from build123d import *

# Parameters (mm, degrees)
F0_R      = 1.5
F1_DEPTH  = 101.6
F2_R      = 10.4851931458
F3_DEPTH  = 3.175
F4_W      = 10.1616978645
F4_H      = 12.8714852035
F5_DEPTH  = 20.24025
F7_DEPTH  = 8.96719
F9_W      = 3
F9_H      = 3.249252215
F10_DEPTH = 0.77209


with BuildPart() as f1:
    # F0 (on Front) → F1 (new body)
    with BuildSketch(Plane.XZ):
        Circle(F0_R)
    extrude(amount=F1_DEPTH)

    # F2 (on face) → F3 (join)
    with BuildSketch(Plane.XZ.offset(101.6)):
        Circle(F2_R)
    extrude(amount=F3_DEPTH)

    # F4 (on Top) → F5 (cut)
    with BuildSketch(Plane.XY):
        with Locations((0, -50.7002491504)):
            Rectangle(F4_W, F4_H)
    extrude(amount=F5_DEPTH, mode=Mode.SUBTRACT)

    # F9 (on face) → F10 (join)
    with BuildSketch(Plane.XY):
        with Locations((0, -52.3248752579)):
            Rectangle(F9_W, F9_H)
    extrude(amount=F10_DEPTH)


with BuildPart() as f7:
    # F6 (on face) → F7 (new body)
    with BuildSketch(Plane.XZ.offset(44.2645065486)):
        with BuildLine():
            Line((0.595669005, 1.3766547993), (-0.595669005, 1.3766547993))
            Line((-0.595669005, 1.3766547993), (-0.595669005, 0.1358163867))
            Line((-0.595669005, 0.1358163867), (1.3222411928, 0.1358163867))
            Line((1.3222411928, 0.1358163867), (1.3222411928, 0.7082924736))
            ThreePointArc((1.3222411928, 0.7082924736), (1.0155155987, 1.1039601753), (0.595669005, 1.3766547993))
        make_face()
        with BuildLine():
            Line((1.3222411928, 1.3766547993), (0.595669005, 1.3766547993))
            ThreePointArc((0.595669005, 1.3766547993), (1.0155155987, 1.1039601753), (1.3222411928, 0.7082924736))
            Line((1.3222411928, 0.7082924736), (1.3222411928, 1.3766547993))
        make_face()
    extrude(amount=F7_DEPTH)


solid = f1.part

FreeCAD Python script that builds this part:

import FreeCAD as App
import Part
import Sketcher

V = App.Vector
Q = App.Units.Quantity

doc = App.newDocument("Part")
params = doc.addObject("Spreadsheet::Sheet", "Params")
for row, (alias, value) in enumerate([
    ("pad1_length", "4 in"),
    ("pad2_length", "0.125 in"),
    ("pocket1_length", "20.24025 mm"),
    ("pad3_length", "0.77209 mm"),
    ("pad4_length", "8.96719 mm"),
], start=1):
    params.set(f"A{row}", alias)
    params.set(f"B{row}", "=" + value)
    params.setAlias(f"B{row}", alias)

body = doc.addObject("PartDesign::Body", "Body")

sketch1 = body.newObject("Sketcher::SketchObject", "Sketch")
sketch1.AttachmentSupport = (doc.getObject("XZ_Plane"), [""])
sketch1.MapMode = "FlatFace"
sketch1.addGeometry(Part.Circle(V(0, 0, 0), V(0, 0, 1), 1.5), False)
sketch1.addConstraint([
    Sketcher.Constraint("Coincident", 0, 3, -1, 1),
    Sketcher.Constraint("Diameter", 0, Q("3 mm")),
])
pad1 = body.newObject("PartDesign::Pad", "Pad")
pad1.Profile = sketch1
pad1.setExpression("Length", "Params.pad1_length")

sketch2 = body.newObject("Sketcher::SketchObject", "Sketch001")
sketch2.AttachmentSupport = (doc.getObject("XZ_Plane"), [""])
sketch2.MapMode = "FlatFace"
sketch2.AttachmentOffset = App.Placement(V(0, 0, 4 * 25.4), App.Rotation())
sketch2.addGeometry(Part.Circle(V(0, 0, 0), V(0, 0, 1), 10.485193), False)
sketch2.addConstraint([
    Sketcher.Constraint("Coincident", 0, 3, -1, 1),
    Sketcher.Constraint("Diameter", 0, Q("20.970386 mm")),
])
pad2 = body.newObject("PartDesign::Pad", "Pad001")
pad2.Profile = sketch2
pad2.setExpression("Length", "Params.pad2_length")

sketch3 = body.newObject("Sketcher::SketchObject", "Sketch002")
sketch3.AttachmentSupport = (doc.getObject("XY_Plane"), [""])
sketch3.MapMode = "FlatFace"
sketch3.addGeometry([
    Part.LineSegment(V(-5.080849, -44.264507, 0), V(-5.080849, -57.135992, 0)),
    Part.LineSegment(V(-5.080849, -57.135992, 0), V(5.080849, -57.135992, 0)),
    Part.LineSegment(V(5.080849, -57.135992, 0), V(5.080849, -44.264507, 0)),
    Part.LineSegment(V(5.080849, -44.264507, 0), V(-5.080849, -44.264507, 0)),
], False)
sketch3.addConstraint([
    Sketcher.Constraint("Coincident", 0, 2, 1, 1),
    Sketcher.Constraint("Coincident", 1, 2, 2, 1),
    Sketcher.Constraint("Coincident", 2, 2, 3, 1),
    Sketcher.Constraint("Coincident", 3, 2, 0, 1),
    Sketcher.Constraint("Vertical", 0),
    Sketcher.Constraint("Horizontal", 1),
    Sketcher.Constraint("Vertical", 2),
    Sketcher.Constraint("Horizontal", 3),
    Sketcher.Constraint("DistanceX", 1, 1, 1, 2, Q("10.161698 mm")),
    Sketcher.Constraint("DistanceY", 0, 2, 0, 1, Q("12.871485 mm")),
    Sketcher.Constraint("DistanceX", 0, 2, -1, 1, Q("5.080849 mm")),
    Sketcher.Constraint("DistanceY", 0, 2, -1, 1, Q("57.135992 mm")),
])
pocket1 = body.newObject("PartDesign::Pocket", "Pocket")
pocket1.Profile = sketch3
pocket1.setExpression("Length", "Params.pocket1_length")
pocket1.Reversed = True

sketch4 = body.newObject("Sketcher::SketchObject", "Sketch003")
sketch4.AttachmentSupport = (doc.getObject("XY_Plane"), [""])
sketch4.MapMode = "FlatFace"
sketch4.addGeometry([
    Part.LineSegment(V(-1.5, -50.700249, 0), V(-1.5, -53.949501, 0)),
    Part.LineSegment(V(-1.5, -53.949501, 0), V(1.5, -53.949501, 0)),
    Part.LineSegment(V(1.5, -53.949501, 0), V(1.5, -50.700249, 0)),
    Part.LineSegment(V(1.5, -50.700249, 0), V(-1.5, -50.700249, 0)),
], False)
sketch4.addConstraint([
    Sketcher.Constraint("Coincident", 0, 2, 1, 1),
    Sketcher.Constraint("Coincident", 1, 2, 2, 1),
    Sketcher.Constraint("Coincident", 2, 2, 3, 1),
    Sketcher.Constraint("Coincident", 3, 2, 0, 1),
    Sketcher.Constraint("Vertical", 0),
    Sketcher.Constraint("Horizontal", 1),
    Sketcher.Constraint("Vertical", 2),
    Sketcher.Constraint("Horizontal", 3),
    Sketcher.Constraint("DistanceX", 1, 1, 1, 2, Q("3 mm")),
    Sketcher.Constraint("DistanceX", 0, 2, -1, 1, Q("1.5 mm")),
    Sketcher.Constraint("DistanceY", 0, 2, -1, 1, Q("53.949501 mm")),
    Sketcher.Constraint("DistanceY", 0, 2, 0, 1, Q("3.249252 mm")),
])
pad3 = body.newObject("PartDesign::Pad", "Pad002")
pad3.Profile = sketch4
pad3.setExpression("Length", "Params.pad3_length")
body2 = doc.addObject("PartDesign::Body", "Body001")

sketch5 = body2.newObject("Sketcher::SketchObject", "Sketch004")
sketch5.AttachmentSupport = (doc.getObject("XZ_Plane001"), [""])
sketch5.MapMode = "FlatFace"
sketch5.AttachmentOffset = App.Placement(V(0, 0, 44.264507), App.Rotation())
sketch5.addGeometry([
    Part.LineSegment(V(-0.595669, 1.376655, 0), V(-0.595669, 0.135816, 0)),
    Part.LineSegment(V(-0.595669, 0.135816, 0), V(1.322241, 0.135816, 0)),
    Part.LineSegment(V(1.322241, 0.135816, 0), V(1.322241, 1.376655, 0)),
    Part.LineSegment(V(1.322241, 1.376655, 0), V(-0.595669, 1.376655, 0)),
], False)
sketch5.addConstraint([
    Sketcher.Constraint("Coincident", 0, 2, 1, 1),
    Sketcher.Constraint("Coincident", 1, 2, 2, 1),
    Sketcher.Constraint("Coincident", 2, 2, 3, 1),
    Sketcher.Constraint("Coincident", 3, 2, 0, 1),
    Sketcher.Constraint("Vertical", 0),
    Sketcher.Constraint("Horizontal", 1),
    Sketcher.Constraint("Vertical", 2),
    Sketcher.Constraint("Horizontal", 3),
    Sketcher.Constraint("DistanceX", 1, 1, 1, 2, Q("1.91791 mm")),
    Sketcher.Constraint("DistanceY", 0, 2, 0, 1, Q("1.240838 mm")),
    Sketcher.Constraint("DistanceX", 0, 2, -1, 1, Q("0.595669 mm")),
    Sketcher.Constraint("DistanceY", -1, 1, 0, 2, Q("0.135816 mm")),
])
pad4 = body2.newObject("PartDesign::Pad", "Pad003")
pad4.Profile = sketch5
pad4.setExpression("Length", "Params.pad4_length")
body2.Visibility = False

doc.recompute()
